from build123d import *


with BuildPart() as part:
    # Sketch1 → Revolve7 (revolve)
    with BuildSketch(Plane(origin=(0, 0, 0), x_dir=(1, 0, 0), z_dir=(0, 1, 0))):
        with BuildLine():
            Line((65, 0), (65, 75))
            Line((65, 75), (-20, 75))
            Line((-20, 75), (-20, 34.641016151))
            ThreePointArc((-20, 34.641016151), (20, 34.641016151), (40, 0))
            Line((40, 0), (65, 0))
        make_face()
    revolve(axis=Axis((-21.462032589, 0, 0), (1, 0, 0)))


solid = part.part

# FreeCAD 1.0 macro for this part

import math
import FreeCAD as App
import Part
import Sketcher
from FreeCAD import Vector

doc = App.newDocument("Part")
body = doc.addObject("PartDesign::Body", "Body")

# Sketch on XZ plane
sketch1 = body.newObject("Sketcher::SketchObject", "Sketch")
sketch1.AttachmentSupport = (doc.getObject("XZ_Plane"), [""])
sketch1.MapMode = "FlatFace"
sketch1.addGeometry([
    Part.LineSegment(Vector(65, 0, 0), Vector(65, -75, 0)),  # 0
    Part.LineSegment(Vector(65, -75, 0), Vector(-20, -75, 0)),  # 1
    Part.LineSegment(Vector(-20, -75, 0), Vector(-20, -34.641016, 0)),  # 2
    Part.ArcOfCircle(Part.Circle(Vector(0, 0, 0), Vector(0, 0, 1), 40), math.radians(-120), math.radians(0)),  # 3
    Part.LineSegment(Vector(40, 0, 0), Vector(65, 0, 0)),  # 4
], False)
sketch1.addConstraint([
    Sketcher.Constraint("Coincident", 0, 2, 1, 1),
    Sketcher.Constraint("Coincident", 1, 2, 2, 1),
    Sketcher.Constraint("Coincident", 2, 2, 3, 1),
    Sketcher.Constraint("Coincident", 3, 2, 4, 1),
    Sketcher.Constraint("Coincident", 4, 2, 0, 1),
    Sketcher.Constraint("Vertical", 0),
    Sketcher.Constraint("Horizontal", 1),
    Sketcher.Constraint("Vertical", 2),
    Sketcher.Constraint("Horizontal", 4),
    Sketcher.Constraint("Coincident", 3, 3, -1, 1),
    Sketcher.Constraint("PointOnObject", 3, 2, -1),
    Sketcher.Constraint("Radius", 3, 40.0),
    Sketcher.Constraint("DistanceX", 1, 2, 1, 1, 85.0),
    Sketcher.Constraint("DistanceX", 4, 1, 4, 2, 25.0),
    Sketcher.Constraint("DistanceY", 0, 2, 0, 1, 75.0),
])
revolution = body.newObject("PartDesign::Revolution", "Revolution")
revolution.Profile = sketch1
revolution.ReferenceAxis = (sketch1, ["H_Axis"])
revolution.Angle = 360

doc.recompute()
